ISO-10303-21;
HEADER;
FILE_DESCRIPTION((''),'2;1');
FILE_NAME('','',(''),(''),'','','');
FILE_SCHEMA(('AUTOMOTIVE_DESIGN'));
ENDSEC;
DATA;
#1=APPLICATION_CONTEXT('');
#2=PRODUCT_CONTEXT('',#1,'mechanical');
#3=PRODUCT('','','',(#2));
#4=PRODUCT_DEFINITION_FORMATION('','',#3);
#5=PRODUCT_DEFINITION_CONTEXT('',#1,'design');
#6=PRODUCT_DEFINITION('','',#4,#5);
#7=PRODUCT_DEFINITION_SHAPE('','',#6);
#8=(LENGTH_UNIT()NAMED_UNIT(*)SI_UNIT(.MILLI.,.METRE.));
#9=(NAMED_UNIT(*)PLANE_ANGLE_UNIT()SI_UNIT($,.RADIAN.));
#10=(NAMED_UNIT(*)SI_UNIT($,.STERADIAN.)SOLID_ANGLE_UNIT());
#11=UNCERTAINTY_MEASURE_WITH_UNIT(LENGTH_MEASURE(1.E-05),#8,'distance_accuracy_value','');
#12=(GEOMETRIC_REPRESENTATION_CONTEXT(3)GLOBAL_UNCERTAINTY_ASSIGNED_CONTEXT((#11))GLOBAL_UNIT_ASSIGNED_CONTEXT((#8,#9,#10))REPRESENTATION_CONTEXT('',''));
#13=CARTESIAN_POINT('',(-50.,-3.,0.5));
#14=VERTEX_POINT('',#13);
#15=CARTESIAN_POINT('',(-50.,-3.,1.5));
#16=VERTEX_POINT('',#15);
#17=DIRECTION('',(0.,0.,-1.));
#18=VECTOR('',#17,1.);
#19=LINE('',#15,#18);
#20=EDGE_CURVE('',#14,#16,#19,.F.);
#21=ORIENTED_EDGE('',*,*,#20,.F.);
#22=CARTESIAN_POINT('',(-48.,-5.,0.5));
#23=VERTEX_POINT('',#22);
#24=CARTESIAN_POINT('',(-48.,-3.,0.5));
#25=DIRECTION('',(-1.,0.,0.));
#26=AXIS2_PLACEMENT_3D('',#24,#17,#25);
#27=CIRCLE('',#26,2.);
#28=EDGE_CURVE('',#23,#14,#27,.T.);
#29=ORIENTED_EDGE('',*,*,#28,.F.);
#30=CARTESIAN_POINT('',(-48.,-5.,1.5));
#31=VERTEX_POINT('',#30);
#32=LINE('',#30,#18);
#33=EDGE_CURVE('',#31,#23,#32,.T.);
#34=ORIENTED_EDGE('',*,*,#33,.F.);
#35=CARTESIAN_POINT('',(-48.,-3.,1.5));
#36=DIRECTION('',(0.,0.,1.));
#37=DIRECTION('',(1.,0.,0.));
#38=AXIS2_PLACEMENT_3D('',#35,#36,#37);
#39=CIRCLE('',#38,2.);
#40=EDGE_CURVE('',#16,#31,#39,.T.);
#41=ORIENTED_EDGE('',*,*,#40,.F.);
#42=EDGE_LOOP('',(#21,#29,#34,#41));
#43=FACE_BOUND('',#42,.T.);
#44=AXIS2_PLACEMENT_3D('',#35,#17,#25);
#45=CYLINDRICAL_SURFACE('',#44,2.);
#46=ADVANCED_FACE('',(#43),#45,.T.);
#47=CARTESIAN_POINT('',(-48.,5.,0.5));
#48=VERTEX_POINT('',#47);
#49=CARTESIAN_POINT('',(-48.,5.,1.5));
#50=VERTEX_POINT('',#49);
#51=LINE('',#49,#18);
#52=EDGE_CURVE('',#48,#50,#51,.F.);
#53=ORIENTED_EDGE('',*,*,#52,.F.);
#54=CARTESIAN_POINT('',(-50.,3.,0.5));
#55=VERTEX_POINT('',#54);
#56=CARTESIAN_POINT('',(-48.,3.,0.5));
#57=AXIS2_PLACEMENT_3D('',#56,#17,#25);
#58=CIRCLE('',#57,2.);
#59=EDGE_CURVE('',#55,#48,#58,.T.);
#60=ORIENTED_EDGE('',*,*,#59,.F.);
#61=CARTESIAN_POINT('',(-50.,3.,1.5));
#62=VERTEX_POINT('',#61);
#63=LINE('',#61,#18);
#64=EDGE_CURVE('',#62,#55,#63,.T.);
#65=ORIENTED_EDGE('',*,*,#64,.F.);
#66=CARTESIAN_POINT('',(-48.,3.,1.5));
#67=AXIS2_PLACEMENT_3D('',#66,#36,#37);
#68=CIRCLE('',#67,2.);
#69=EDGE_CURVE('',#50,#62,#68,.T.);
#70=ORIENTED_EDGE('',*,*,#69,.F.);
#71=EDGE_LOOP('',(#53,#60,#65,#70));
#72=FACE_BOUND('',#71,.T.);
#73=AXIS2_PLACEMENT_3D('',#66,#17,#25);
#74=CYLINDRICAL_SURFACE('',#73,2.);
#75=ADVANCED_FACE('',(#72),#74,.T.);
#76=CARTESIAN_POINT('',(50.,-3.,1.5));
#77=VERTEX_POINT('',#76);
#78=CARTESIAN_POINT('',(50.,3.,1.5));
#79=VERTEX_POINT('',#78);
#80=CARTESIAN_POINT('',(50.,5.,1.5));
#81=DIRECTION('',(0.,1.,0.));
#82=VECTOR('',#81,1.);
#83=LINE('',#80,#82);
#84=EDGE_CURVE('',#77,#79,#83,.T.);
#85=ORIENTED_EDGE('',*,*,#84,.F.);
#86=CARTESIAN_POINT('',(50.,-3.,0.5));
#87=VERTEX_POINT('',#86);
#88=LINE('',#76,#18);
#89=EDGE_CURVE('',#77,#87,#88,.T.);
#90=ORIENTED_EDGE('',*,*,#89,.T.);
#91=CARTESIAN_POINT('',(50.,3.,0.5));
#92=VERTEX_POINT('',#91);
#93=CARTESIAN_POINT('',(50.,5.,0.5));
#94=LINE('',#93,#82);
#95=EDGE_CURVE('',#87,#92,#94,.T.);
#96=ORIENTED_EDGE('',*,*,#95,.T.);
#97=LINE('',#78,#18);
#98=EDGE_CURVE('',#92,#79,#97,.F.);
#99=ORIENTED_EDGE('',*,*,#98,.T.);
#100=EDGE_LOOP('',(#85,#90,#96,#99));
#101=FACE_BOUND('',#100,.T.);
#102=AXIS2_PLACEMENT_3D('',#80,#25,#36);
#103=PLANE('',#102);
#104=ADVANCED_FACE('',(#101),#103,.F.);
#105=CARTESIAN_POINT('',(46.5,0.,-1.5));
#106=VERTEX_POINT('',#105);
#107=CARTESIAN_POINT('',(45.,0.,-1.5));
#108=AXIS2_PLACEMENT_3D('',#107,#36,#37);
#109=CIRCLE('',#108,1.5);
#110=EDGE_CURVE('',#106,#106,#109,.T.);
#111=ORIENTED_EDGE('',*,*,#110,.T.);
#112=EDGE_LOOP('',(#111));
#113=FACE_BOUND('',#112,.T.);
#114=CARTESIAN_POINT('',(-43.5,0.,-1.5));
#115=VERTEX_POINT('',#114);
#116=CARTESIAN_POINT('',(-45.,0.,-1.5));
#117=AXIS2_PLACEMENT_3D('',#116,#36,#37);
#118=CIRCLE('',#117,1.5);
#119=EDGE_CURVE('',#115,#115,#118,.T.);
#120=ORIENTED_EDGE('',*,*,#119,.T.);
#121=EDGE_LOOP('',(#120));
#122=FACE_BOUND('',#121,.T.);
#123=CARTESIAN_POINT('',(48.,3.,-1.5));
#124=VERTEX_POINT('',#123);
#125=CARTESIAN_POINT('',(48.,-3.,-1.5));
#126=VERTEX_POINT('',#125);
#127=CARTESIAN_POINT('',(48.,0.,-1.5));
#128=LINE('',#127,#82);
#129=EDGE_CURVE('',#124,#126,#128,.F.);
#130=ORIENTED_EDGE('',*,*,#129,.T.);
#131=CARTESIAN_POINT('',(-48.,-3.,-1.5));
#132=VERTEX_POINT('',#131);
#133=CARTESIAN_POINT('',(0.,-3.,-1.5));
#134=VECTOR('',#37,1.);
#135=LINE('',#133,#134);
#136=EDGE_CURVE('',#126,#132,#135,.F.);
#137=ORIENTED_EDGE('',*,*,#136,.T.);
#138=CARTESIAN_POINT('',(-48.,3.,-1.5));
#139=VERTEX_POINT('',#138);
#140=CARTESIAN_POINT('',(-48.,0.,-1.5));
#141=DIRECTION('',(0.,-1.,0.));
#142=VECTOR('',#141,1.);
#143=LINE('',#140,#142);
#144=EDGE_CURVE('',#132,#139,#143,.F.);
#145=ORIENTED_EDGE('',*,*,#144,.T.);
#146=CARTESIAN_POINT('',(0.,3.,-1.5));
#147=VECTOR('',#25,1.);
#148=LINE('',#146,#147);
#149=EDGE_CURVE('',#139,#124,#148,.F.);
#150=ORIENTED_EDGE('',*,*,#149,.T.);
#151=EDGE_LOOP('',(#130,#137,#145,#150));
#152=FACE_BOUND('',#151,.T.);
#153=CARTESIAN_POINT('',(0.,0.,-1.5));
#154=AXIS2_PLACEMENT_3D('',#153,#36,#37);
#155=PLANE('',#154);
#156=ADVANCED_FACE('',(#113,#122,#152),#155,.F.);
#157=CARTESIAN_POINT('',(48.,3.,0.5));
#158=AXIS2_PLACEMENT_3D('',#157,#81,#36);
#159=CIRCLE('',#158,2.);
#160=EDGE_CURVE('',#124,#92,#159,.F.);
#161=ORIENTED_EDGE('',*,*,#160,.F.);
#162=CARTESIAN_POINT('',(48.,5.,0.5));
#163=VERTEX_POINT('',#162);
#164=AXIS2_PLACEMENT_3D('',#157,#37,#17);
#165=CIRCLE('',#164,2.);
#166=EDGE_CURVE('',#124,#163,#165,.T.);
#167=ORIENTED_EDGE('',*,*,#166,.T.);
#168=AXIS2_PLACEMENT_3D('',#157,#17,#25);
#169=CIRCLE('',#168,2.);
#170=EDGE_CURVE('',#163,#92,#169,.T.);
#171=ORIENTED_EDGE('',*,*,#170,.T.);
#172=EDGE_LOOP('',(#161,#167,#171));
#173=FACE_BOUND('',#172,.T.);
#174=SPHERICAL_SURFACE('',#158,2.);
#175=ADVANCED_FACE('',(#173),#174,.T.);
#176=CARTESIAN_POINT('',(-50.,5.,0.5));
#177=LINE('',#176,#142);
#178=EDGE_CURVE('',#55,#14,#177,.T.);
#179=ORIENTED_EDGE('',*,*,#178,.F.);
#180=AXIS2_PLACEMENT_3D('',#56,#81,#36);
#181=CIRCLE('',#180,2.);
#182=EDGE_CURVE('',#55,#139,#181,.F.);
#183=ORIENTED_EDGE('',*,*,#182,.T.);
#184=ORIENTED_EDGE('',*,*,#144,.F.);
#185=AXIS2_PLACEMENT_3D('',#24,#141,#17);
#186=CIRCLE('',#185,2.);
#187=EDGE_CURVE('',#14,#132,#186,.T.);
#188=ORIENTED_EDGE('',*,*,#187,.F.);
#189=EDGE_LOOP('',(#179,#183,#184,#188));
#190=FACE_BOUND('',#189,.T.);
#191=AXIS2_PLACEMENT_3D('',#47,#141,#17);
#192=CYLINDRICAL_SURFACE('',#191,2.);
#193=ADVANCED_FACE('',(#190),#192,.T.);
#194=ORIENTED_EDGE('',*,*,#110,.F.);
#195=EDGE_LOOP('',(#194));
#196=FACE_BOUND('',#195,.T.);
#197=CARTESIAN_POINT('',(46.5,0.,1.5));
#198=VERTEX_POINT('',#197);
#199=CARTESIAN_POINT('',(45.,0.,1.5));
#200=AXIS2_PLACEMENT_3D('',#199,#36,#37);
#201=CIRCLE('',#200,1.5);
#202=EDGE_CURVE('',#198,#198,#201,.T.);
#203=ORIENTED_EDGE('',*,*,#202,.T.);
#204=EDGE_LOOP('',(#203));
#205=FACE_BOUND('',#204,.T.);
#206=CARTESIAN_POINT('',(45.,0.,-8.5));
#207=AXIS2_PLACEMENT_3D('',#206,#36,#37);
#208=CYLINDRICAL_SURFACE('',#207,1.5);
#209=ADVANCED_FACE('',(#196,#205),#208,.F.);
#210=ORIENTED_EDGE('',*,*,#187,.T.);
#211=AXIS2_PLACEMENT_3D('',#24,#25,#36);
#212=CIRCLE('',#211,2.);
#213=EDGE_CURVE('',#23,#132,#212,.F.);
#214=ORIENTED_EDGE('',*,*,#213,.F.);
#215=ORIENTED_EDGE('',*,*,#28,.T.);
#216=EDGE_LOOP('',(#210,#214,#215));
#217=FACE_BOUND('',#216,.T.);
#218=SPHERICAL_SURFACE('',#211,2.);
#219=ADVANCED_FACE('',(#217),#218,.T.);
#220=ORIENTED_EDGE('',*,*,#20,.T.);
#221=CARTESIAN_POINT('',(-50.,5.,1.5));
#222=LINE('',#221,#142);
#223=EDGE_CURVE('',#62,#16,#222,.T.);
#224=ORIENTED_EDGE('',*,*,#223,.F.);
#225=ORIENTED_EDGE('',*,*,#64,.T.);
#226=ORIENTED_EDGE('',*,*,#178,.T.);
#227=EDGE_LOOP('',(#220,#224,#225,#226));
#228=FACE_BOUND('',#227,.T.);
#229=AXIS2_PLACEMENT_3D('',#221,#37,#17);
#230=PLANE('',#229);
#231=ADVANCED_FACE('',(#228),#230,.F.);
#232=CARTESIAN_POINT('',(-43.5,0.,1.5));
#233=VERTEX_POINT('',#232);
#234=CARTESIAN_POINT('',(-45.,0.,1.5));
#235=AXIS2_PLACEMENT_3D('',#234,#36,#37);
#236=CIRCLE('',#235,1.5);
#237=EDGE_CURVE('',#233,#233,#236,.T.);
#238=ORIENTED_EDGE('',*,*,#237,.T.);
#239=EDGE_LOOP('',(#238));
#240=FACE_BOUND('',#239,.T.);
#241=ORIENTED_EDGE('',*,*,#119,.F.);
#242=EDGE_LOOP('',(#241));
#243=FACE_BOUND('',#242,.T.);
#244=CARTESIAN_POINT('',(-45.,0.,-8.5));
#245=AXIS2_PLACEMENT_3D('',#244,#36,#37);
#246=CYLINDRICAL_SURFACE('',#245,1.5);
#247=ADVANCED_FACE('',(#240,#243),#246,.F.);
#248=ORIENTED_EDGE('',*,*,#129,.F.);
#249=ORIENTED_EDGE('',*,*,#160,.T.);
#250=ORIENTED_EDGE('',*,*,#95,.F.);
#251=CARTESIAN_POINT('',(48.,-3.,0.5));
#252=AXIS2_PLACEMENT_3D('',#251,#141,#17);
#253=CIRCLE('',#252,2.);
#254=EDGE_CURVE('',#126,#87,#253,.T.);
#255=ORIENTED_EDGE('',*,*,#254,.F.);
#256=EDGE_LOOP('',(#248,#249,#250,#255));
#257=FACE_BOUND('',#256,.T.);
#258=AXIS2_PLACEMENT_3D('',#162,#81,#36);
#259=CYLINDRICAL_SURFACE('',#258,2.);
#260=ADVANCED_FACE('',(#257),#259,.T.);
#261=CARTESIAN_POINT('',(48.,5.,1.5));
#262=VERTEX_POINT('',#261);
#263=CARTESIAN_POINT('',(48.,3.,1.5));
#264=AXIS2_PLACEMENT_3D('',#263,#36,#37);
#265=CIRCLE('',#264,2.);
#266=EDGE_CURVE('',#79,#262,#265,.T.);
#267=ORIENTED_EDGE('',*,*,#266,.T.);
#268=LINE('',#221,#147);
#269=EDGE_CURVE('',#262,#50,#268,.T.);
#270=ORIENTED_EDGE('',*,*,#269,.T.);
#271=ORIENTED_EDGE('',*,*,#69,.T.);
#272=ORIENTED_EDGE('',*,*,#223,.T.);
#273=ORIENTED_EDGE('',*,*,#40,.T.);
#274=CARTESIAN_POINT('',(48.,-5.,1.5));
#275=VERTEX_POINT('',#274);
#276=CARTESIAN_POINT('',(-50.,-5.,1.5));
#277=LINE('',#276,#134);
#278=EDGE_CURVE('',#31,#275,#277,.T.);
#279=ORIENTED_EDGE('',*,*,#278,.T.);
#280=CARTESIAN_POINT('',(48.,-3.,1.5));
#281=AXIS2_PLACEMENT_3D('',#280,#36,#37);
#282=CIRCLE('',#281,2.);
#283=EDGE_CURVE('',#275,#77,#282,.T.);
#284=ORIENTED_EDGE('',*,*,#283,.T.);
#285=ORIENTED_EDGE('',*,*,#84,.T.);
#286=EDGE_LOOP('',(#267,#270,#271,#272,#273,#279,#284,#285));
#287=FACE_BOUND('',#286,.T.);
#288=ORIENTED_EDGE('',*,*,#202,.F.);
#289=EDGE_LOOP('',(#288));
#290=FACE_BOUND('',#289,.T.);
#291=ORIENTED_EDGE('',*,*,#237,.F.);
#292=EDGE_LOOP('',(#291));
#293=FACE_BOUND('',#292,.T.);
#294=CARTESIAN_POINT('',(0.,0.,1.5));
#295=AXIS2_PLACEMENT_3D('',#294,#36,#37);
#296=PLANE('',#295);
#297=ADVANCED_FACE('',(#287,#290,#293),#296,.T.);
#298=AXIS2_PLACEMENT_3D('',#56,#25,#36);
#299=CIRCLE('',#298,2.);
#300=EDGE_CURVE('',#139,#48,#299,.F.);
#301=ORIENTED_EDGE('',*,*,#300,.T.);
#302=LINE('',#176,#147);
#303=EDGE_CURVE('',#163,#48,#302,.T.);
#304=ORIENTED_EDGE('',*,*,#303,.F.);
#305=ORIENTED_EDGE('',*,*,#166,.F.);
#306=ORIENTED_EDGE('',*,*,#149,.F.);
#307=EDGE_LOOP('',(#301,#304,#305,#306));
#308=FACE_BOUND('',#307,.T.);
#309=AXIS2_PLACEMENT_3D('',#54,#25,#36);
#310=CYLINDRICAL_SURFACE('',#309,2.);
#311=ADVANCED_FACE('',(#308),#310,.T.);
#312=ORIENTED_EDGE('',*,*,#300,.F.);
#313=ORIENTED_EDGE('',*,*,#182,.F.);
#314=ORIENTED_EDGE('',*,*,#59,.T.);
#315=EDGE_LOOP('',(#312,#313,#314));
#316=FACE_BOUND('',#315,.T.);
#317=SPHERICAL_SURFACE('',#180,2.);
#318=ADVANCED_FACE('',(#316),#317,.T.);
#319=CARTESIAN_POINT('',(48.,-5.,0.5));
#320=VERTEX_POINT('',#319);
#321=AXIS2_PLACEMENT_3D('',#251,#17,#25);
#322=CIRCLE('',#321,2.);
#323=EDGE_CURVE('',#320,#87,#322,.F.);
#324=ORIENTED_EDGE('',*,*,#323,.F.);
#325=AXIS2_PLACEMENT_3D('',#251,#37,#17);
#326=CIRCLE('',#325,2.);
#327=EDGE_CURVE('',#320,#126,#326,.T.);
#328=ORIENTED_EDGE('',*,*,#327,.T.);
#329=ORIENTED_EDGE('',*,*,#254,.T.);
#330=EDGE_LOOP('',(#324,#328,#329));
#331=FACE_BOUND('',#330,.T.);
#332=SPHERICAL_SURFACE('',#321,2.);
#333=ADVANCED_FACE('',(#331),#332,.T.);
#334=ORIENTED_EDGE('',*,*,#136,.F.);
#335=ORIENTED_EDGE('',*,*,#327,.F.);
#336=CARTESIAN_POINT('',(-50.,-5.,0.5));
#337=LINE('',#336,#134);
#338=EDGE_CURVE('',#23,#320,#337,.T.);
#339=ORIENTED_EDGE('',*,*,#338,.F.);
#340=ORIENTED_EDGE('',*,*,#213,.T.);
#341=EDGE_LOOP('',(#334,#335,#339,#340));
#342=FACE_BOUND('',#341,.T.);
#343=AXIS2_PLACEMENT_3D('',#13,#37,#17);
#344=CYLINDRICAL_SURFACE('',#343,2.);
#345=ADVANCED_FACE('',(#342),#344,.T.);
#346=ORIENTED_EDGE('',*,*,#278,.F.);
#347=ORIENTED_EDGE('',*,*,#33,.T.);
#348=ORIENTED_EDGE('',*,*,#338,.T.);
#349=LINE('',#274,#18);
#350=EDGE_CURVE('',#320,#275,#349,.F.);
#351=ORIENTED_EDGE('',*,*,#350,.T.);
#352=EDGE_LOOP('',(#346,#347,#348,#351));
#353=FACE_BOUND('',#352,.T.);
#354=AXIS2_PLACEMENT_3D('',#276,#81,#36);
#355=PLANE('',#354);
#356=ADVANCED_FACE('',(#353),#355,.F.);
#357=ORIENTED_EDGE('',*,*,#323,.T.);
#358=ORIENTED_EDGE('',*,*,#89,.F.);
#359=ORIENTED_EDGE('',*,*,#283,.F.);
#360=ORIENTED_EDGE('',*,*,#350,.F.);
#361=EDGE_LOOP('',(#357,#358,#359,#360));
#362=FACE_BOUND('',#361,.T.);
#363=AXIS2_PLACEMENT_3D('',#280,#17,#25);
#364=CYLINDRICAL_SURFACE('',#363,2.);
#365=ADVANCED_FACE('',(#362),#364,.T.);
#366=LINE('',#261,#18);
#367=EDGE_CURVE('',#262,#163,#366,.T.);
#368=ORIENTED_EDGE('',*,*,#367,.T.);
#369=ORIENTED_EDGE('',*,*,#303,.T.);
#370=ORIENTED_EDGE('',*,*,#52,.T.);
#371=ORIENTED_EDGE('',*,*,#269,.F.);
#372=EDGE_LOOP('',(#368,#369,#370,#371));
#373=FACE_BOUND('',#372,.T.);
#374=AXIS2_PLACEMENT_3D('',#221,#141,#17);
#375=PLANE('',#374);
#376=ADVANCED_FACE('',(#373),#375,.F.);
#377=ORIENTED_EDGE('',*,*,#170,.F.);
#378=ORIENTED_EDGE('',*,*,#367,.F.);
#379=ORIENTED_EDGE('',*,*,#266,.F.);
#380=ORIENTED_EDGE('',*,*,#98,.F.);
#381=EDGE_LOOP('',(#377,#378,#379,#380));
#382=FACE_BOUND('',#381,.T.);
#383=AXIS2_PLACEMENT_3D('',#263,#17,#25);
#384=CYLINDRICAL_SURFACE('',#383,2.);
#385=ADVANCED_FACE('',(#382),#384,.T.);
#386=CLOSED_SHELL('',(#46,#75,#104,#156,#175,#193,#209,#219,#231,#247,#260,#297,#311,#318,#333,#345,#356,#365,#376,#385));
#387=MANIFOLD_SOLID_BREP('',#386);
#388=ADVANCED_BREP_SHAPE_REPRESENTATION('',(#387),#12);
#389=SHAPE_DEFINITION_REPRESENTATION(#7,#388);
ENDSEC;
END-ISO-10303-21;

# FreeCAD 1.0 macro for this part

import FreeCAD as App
import Part
import Sketcher

V = App.Vector
Q = App.Units.Quantity


def edges_at(feature, points):
    """Names of the edges that pass closest to the given points."""
    edges = feature.Shape.Edges
    near = lambda p: min(range(len(edges)), key=lambda i: edges[i].distToShape(Part.Vertex(*p))[0])
    return sorted({f"Edge{near(p) + 1}" for p in points})


def add_polygon(sketch, points):
    """Adds a closed chain of lines whose ends are joined by coincident constraints."""
    first, n = sketch.GeometryCount, len(points)
    for a, b in zip(points, points[1:] + points[:1]):
        sketch.addGeometry(Part.LineSegment(App.Vector(*a, 0), App.Vector(*b, 0)), False)
    for i in range(n):
        sketch.addConstraint(Sketcher.Constraint("Coincident", first + i, 2, first + (i + 1) % n, 1))

doc = App.newDocument("Part")
params = doc.addObject("Spreadsheet::Sheet", "Params")
for row, (alias, value) in enumerate([
    ("sketch1_width", "100 mm"),
    ("sketch1_height", "10 mm"),
    ("pad1_length", "3 mm"),
    ("sketch2_diameter", "3 mm"),
    ("pocket1_length", "10 mm"),
    ("fillet_radius", "2 mm"),
], start=1):
    params.set(f"A{row}", alias)
    params.set(f"B{row}", "=" + value)
    params.setAlias(f"B{row}", alias)

body = doc.addObject("PartDesign::Body", "Body")

# Sketch on XY plane
sketch1 = body.newObject("Sketcher::SketchObject", "Sketch")
sketch1.AttachmentSupport = (doc.getObject("XY_Plane"), [""])
sketch1.MapMode = "FlatFace"
add_polygon(sketch1, [(-50, 5), (-50, -5), (50, -5), (50, 5)])  # lines 0-3
sketch1.addConstraint([
    Sketcher.Constraint("Vertical", 0),
    Sketcher.Constraint("Horizontal", 1),
    Sketcher.Constraint("Vertical", 2),
    Sketcher.Constraint("Horizontal", 3),
    Sketcher.Constraint("Symmetric", 0, 2, 2, 2, -1, 1),
    Sketcher.Constraint("DistanceX", 1, 1, 1, 2, Q("100 mm")),
    Sketcher.Constraint("DistanceY", 0, 2, 0, 1, Q("10 mm")),
])
sketch1.setExpression("Constraints[9]", "Params.sketch1_width")
sketch1.setExpression("Constraints[10]", "Params.sketch1_height")
pad1 = body.newObject("PartDesign::Pad", "Pad")
pad1.Profile = sketch1
pad1.setExpression("Length", "Params.pad1_length")
pad1.Midplane = True

# Sketch on XY plane
sketch2 = body.newObject("Sketcher::SketchObject", "Sketch001")
sketch2.AttachmentSupport = (doc.getObject("XY_Plane"), [""])
sketch2.MapMode = "FlatFace"
sketch2.AttachmentOffset = App.Placement(V(0, 0, 1.5), App.Rotation())
sketch2.addGeometry([
    Part.Circle(V(-45, 0, 0), V(0, 0, 1), 1.5),
    Part.Circle(V(45, 0, 0), V(0, 0, 1), 1.5),
], False)
sketch2.addConstraint([
    Sketcher.Constraint("Equal", 0, 1),
    Sketcher.Constraint("Symmetric", 0, 3, 1, 3, -1, 1),
    Sketcher.Constraint("PointOnObject", 0, 3, -1),
    Sketcher.Constraint("Diameter", 0, Q("3 mm")),
    Sketcher.Constraint("DistanceX", 0, 3, -1, 1, Q("45 mm")),
])
sketch2.setExpression("Constraints[3]", "Params.sketch2_diameter")
pocket1 = body.newObject("PartDesign::Pocket", "Pocket")
pocket1.Profile = sketch2
pocket1.setExpression("Length", "Params.pocket1_length")
doc.recompute()

fillet = body.newObject("PartDesign::Fillet", "Fillet")
fillet.Base = (pocket1, edges_at(pocket1, [
    (0, -5, -1.5),
    (-50, 0, -1.5),
    (0, 5, -1.5),
    (50, 0, -1.5),
    (50, -5, 0),
    (-50, -5, 0),
    (-50, 5, 0),
    (50, 5, 0),
]))
fillet.setExpression("Radius", "Params.fillet_radius")

doc.recompute()
